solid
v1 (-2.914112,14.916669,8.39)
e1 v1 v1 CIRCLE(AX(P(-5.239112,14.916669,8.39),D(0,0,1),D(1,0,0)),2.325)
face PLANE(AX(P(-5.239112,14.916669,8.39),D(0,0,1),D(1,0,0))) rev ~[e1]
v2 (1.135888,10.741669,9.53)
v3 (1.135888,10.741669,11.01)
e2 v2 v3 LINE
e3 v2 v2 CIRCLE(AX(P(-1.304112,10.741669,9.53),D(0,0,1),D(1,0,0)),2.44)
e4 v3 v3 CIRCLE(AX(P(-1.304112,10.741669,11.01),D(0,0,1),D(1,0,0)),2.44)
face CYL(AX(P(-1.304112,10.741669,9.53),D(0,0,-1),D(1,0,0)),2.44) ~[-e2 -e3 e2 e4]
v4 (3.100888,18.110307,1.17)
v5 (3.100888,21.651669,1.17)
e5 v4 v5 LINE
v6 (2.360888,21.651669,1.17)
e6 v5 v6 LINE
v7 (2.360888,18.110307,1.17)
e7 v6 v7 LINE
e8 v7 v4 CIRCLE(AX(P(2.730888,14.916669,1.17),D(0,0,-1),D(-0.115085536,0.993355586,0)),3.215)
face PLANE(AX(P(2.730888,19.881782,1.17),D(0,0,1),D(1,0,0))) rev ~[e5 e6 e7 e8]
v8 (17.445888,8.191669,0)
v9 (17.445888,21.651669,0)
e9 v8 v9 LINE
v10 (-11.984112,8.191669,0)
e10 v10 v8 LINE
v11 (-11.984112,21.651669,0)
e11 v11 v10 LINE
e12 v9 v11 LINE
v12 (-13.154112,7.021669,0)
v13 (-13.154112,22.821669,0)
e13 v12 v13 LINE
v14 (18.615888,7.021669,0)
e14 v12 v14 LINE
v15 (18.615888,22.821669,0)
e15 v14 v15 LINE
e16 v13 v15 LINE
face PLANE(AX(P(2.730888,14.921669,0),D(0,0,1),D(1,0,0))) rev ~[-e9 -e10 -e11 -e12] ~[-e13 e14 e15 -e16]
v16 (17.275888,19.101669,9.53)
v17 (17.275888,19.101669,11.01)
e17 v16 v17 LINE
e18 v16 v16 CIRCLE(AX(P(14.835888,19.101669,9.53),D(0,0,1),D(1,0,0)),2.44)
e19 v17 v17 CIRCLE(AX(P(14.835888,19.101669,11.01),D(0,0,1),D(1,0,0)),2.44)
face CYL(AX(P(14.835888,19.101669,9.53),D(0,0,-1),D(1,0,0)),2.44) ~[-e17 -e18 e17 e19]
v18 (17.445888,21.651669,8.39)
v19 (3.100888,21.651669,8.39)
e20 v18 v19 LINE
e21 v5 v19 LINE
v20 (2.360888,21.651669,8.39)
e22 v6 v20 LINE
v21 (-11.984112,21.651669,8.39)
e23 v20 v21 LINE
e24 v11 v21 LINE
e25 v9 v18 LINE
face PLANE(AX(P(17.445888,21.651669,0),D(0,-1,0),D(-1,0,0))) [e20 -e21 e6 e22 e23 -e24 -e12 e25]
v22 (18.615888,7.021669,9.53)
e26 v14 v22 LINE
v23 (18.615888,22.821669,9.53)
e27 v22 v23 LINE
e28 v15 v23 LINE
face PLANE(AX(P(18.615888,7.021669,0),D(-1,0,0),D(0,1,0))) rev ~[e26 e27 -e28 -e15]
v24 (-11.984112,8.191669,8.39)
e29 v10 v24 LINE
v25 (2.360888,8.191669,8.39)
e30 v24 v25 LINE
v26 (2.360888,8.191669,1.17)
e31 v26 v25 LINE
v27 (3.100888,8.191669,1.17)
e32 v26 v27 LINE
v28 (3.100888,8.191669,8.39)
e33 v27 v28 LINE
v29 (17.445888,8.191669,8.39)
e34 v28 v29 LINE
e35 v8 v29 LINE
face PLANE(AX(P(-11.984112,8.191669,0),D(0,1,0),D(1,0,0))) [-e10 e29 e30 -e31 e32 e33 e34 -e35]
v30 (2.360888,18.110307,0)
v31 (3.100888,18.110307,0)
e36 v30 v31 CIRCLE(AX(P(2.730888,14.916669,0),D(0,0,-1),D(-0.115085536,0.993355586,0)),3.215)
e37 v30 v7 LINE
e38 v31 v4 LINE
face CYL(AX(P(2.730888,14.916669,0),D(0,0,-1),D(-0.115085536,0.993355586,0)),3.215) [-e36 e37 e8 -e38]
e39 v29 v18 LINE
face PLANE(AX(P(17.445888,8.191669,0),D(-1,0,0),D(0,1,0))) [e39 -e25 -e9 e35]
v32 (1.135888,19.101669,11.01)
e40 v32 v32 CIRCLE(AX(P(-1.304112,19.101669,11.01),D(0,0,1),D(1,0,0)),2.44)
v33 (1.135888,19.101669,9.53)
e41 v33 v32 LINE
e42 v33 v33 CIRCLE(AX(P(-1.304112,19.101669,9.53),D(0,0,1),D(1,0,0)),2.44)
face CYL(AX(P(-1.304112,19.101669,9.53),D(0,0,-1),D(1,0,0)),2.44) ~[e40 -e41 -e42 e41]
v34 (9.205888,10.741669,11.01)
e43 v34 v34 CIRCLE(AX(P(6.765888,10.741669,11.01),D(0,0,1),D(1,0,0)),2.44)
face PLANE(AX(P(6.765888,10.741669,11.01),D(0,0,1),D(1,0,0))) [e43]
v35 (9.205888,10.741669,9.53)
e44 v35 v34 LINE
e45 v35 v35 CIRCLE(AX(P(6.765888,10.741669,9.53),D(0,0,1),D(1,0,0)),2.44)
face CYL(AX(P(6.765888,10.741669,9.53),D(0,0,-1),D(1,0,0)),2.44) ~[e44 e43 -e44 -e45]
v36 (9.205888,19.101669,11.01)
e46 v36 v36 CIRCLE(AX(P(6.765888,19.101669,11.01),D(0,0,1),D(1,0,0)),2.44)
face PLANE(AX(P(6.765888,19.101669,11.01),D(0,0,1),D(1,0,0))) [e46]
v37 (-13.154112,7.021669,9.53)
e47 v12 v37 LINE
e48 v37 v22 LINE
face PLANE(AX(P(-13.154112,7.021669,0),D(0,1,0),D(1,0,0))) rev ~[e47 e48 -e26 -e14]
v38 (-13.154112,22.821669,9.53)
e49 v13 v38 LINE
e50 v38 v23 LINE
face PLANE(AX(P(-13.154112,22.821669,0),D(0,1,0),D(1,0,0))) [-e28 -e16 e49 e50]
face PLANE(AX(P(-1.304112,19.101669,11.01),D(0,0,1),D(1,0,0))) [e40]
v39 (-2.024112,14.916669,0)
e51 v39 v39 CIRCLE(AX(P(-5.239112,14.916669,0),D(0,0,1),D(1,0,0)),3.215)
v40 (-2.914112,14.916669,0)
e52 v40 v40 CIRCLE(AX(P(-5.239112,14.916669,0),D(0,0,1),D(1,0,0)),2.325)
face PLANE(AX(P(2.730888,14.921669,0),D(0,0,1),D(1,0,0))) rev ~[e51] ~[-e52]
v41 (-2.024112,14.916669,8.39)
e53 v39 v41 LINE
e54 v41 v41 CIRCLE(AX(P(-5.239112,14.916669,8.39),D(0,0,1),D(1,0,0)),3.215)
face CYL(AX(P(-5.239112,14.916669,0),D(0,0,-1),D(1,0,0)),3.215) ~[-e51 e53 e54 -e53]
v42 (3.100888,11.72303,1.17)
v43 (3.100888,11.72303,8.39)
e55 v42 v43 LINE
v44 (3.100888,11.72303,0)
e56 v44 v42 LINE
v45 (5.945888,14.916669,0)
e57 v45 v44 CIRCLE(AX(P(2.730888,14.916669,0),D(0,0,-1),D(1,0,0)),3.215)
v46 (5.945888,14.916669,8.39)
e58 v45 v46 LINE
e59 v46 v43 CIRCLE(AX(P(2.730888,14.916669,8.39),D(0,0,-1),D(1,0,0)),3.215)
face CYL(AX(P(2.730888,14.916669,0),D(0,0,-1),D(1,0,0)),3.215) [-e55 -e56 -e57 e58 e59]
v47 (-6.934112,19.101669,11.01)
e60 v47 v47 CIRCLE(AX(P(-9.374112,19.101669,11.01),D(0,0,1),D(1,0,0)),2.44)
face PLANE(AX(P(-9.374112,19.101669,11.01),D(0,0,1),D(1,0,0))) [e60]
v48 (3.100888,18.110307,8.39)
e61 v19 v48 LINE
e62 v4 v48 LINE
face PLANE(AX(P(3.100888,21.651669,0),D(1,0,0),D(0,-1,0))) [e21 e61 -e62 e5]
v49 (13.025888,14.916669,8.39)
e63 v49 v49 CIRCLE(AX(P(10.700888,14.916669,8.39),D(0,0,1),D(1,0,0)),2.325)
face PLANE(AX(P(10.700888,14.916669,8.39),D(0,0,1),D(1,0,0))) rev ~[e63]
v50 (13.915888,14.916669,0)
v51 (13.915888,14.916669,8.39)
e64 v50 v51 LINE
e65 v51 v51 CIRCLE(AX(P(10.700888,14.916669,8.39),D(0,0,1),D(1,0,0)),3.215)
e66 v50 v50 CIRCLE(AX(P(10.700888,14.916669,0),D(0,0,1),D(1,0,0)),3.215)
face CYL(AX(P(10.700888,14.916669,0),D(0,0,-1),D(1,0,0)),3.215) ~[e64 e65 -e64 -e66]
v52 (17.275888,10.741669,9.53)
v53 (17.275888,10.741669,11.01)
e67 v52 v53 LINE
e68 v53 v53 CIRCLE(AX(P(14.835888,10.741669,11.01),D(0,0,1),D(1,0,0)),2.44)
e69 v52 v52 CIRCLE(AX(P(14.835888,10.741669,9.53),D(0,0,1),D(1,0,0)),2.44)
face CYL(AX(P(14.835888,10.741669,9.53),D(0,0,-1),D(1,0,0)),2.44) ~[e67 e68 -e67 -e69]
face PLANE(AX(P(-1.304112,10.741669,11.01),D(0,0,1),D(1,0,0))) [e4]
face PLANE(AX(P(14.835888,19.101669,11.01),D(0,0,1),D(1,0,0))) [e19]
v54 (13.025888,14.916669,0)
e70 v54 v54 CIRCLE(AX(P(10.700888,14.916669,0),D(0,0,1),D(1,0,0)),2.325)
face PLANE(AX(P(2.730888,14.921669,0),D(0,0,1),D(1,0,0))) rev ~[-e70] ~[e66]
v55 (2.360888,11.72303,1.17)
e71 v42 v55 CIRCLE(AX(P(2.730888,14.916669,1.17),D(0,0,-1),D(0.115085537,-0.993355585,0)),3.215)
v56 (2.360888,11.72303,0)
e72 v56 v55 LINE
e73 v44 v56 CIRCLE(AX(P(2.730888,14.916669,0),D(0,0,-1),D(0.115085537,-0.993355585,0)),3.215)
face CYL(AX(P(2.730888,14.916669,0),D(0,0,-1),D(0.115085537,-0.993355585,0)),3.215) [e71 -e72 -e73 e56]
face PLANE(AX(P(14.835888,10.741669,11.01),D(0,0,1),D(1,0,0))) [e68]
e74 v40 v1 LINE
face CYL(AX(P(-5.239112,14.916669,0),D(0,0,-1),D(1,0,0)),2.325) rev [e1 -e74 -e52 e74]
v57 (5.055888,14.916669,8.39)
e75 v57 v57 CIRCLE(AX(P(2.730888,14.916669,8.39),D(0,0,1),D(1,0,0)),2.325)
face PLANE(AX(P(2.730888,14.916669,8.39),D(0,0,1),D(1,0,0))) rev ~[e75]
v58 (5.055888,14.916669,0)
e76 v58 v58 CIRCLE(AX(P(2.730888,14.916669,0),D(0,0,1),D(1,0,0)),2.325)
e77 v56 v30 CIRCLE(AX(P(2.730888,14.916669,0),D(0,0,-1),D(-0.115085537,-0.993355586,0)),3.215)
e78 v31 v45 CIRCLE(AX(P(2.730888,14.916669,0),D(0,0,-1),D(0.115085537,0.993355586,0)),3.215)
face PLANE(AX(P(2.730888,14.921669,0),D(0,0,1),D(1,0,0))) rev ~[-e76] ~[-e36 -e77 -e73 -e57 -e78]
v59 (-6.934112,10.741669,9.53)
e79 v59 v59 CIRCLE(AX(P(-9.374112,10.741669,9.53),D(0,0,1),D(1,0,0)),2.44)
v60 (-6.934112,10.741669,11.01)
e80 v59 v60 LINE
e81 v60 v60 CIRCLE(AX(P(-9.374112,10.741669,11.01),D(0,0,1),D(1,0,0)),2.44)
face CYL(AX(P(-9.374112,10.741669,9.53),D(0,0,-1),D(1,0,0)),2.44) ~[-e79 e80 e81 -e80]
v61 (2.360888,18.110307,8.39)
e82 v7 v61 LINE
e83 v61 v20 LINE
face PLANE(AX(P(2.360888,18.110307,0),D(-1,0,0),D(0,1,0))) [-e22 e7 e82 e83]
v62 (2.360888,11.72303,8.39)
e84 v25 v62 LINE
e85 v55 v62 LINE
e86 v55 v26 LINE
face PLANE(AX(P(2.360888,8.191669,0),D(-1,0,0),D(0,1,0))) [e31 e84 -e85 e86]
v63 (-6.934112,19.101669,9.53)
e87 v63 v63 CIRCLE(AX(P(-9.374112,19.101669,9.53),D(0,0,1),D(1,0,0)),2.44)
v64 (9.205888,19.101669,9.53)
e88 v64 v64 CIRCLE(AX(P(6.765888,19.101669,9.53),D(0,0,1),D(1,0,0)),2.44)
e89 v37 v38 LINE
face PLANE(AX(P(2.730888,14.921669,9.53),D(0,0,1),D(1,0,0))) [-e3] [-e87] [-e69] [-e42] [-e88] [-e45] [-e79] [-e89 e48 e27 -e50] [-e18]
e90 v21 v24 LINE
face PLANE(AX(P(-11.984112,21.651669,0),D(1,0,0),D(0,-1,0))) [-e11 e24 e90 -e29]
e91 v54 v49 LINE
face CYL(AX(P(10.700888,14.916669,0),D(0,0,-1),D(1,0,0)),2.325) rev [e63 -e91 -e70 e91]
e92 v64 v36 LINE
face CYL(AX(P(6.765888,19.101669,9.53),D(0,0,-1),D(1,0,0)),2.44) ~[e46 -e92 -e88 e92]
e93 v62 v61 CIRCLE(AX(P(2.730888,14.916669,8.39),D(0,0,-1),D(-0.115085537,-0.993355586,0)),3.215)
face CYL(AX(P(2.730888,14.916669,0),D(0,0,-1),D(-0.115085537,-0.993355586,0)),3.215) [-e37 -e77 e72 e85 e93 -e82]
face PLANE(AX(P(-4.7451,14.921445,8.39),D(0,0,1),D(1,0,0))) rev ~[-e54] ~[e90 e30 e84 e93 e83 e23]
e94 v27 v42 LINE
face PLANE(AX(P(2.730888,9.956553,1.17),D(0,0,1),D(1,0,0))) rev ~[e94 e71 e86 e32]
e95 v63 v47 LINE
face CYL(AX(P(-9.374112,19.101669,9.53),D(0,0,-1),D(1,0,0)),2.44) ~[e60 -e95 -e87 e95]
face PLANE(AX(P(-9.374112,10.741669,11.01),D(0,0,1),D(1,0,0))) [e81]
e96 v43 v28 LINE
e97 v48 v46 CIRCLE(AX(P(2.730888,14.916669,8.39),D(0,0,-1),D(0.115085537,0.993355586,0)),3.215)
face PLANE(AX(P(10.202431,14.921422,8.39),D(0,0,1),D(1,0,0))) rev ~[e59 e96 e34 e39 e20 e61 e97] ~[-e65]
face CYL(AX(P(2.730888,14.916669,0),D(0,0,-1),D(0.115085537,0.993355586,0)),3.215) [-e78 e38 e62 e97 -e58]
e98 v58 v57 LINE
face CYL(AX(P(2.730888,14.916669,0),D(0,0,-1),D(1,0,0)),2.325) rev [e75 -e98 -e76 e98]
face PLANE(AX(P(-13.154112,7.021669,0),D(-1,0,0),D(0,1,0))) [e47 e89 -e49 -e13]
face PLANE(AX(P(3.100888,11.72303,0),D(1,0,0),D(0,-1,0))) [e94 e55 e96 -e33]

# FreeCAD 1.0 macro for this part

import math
import FreeCAD as App
import Part
import Sketcher

V = App.Vector

doc = App.newDocument("Part")
body = doc.addObject("PartDesign::Body", "Body")

# Sketch on XY plane
sketch1 = body.newObject("Sketcher::SketchObject", "Sketch")
sketch1.AttachmentSupport = (doc.getObject("XY_Plane"), [""])
sketch1.MapMode = "FlatFace"
sketch1.addGeometry([
    Part.LineSegment(V(-13.154112, 22.821669, 0), V(-13.154112, 7.021669, 0)),
    Part.LineSegment(V(-13.154112, 7.021669, 0), V(18.615888, 7.021669, 0)),
    Part.LineSegment(V(18.615888, 7.021669, 0), V(18.615888, 22.821669, 0)),
    Part.LineSegment(V(18.615888, 22.821669, 0), V(-13.154112, 22.821669, 0)),
], False)
sketch1.addConstraint([
    Sketcher.Constraint("Coincident", 0, 2, 1, 1),
    Sketcher.Constraint("Coincident", 1, 2, 2, 1),
    Sketcher.Constraint("Coincident", 2, 2, 3, 1),
    Sketcher.Constraint("Coincident", 3, 2, 0, 1),
    Sketcher.Constraint("Vertical", 0),
    Sketcher.Constraint("Horizontal", 1),
    Sketcher.Constraint("Vertical", 2),
    Sketcher.Constraint("Horizontal", 3),
    Sketcher.Constraint("DistanceY", 0, 2, 0, 1, 15.8),
    Sketcher.Constraint("DistanceX", 1, 1, 1, 2, 31.77),
    Sketcher.Constraint("DistanceY", -1, 1, 0, 2, 7.021669),
    Sketcher.Constraint("DistanceX", 0, 2, -1, 1, 13.154112),
])
pad1 = body.newObject("PartDesign::Pad", "Pad")
pad1.Profile = sketch1
pad1.Length = 9.53

# Sketch on XY plane
sketch2 = body.newObject("Sketcher::SketchObject", "Sketch001")
sketch2.AttachmentSupport = (doc.getObject("XY_Plane"), [""])
sketch2.MapMode = "FlatFace"
sketch2.addGeometry([
    Part.LineSegment(V(-11.984112, 21.651669, 0), V(-11.984112, 8.191669, 0)),  # 0
    Part.LineSegment(V(-11.984112, 8.191669, 0), V(2.360888, 8.191669, 0)),  # 1
    Part.LineSegment(V(2.360888, 8.191669, 0), V(2.360888, 11.72303, 0)),  # 2
    Part.ArcOfCircle(Part.Circle(V(2.730888, 14.916669, 0), V(0, 0, 1), 3.215), math.radians(96.608559), math.radians(263.391441)),  # 3
    Part.LineSegment(V(2.360888, 18.110307, 0), V(2.360888, 21.651669, 0)),  # 4
    Part.LineSegment(V(2.360888, 21.651669, 0), V(-11.984112, 21.651669, 0)),  # 5
    Part.Circle(V(-5.239112, 14.916669, 0), V(0, 0, 1), 3.215),  # 6
    Part.LineSegment(V(3.100888, 11.72303, 0), V(3.100888, 8.191669, 0)),  # 7
    Part.LineSegment(V(3.100888, 8.191669, 0), V(17.445888, 8.191669, 0)),  # 8
    Part.LineSegment(V(17.445888, 8.191669, 0), V(17.445888, 21.651669, 0)),  # 9
    Part.LineSegment(V(17.445888, 21.651669, 0), V(3.100888, 21.651669, 0)),  # 10
    Part.LineSegment(V(3.100888, 21.651669, 0), V(3.100888, 18.110307, 0)),  # 11
    Part.ArcOfCircle(Part.Circle(V(2.730888, 14.916669, 0), V(0, 0, 1), 3.215), math.radians(0), math.radians(83.391441)),  # 12
    Part.ArcOfCircle(Part.Circle(V(2.730888, 14.916669, 0), V(0, 0, 1), 3.215), math.radians(-83.391441), math.radians(0)),  # 13
    Part.Circle(V(10.700888, 14.916669, 0), V(0, 0, 1), 3.215),  # 14
    Part.Circle(V(10.700888, 14.916669, 0), V(0, 0, 1), 2.325),  # 15
    Part.Circle(V(2.730888, 14.916669, 0), V(0, 0, 1), 2.325),  # 16
    Part.Circle(V(-5.239112, 14.916669, 0), V(0, 0, 1), 2.325),  # 17
], False)
sketch2.addConstraint([
    Sketcher.Constraint("Coincident", 0, 2, 1, 1),
    Sketcher.Constraint("Coincident", 1, 2, 2, 1),
    Sketcher.Constraint("Coincident", 2, 2, 3, 2),
    Sketcher.Constraint("Coincident", 3, 1, 4, 1),
    Sketcher.Constraint("Coincident", 4, 2, 5, 1),
    Sketcher.Constraint("Coincident", 5, 2, 0, 1),
    Sketcher.Constraint("Coincident", 7, 2, 8, 1),
    Sketcher.Constraint("Coincident", 8, 2, 9, 1),
    Sketcher.Constraint("Coincident", 9, 2, 10, 1),
    Sketcher.Constraint("Coincident", 10, 2, 11, 1),
    Sketcher.Constraint("Coincident", 11, 2, 12, 2),
    Sketcher.Constraint("Tangent", 12, 1, 13, 2),
    Sketcher.Constraint("Coincident", 13, 1, 7, 1),
    Sketcher.Constraint("Vertical", 0),
    Sketcher.Constraint("Horizontal", 1),
    Sketcher.Constraint("Vertical", 2),
    Sketcher.Constraint("Vertical", 4),
    Sketcher.Constraint("Horizontal", 5),
    Sketcher.Constraint("Vertical", 7),
    Sketcher.Constraint("Horizontal", 8),
    Sketcher.Constraint("Vertical", 9),
    Sketcher.Constraint("Horizontal", 10),
    Sketcher.Constraint("Vertical", 11),
    Sketcher.Constraint("Coincident", 12, 3, 3, 3),
    Sketcher.Constraint("Coincident", 15, 3, 14, 3),
    Sketcher.Constraint("Coincident", 16, 3, 3, 3),
    Sketcher.Constraint("Coincident", 17, 3, 6, 3),
    Sketcher.Constraint("Equal", 3, 6),
    Sketcher.Constraint("Equal", 6, 12),
    Sketcher.Constraint("Equal", 12, 13),
    Sketcher.Constraint("Equal", 13, 14),
    Sketcher.Constraint("Equal", 15, 16),
    Sketcher.Constraint("Equal", 16, 17),
    Sketcher.Constraint("Horizontal", 3, 3, 6, 3),
    Sketcher.Constraint("Horizontal", 13, 3, 14, 3),
    Sketcher.Constraint("Horizontal", 1, 2, 7, 2),
    Sketcher.Constraint("Horizontal", 5, 2, 9, 2),
    Sketcher.Constraint("Horizontal", 3, 1, 11, 2),
    Sketcher.Constraint("Horizontal", 17, 3, 12, 1),
    Sketcher.Constraint("Horizontal", 2, 2, 13, 1),
    Sketcher.Constraint("Vertical", 2, 2, 3, 1),
    Sketcher.Constraint("Equal", 5, 8),
    Sketcher.Constraint("Diameter", 6, 6.43),
    Sketcher.Constraint("Diameter", 15, 4.65),
    Sketcher.Constraint("DistanceY", 0, 2, 0, 1, 13.46),
    Sketcher.Constraint("DistanceX", 6, 3, 1, 2, 7.6),
    Sketcher.Constraint("DistanceX", 1, 1, 1, 2, 14.345),
    Sketcher.Constraint("DistanceX", 6, 3, 3, 3, 7.97),
    Sketcher.Constraint("DistanceX", 3, 3, 14, 3, 7.97),
    Sketcher.Constraint("DistanceY", 0, 2, 6, 3, 6.725),
    Sketcher.Constraint("DistanceY", -1, 1, 3, 3, 14.916669),
    Sketcher.Constraint("DistanceX", -1, 1, 3, 3, 2.730888),
])
pocket1 = body.newObject("PartDesign::Pocket", "Pocket")
pocket1.Profile = sketch2
pocket1.Length = 8.39
pocket1.Reversed = True

# Sketch on XY plane
sketch3 = body.newObject("Sketcher::SketchObject", "Sketch002")
sketch3.AttachmentSupport = (doc.getObject("XY_Plane"), [""])
sketch3.MapMode = "FlatFace"
sketch3.addGeometry([
    Part.LineSegment(V(2.360888, 11.72303, 0), V(2.360888, 8.191669, 0)),  # 0
    Part.LineSegment(V(2.360888, 8.191669, 0), V(3.100888, 8.191669, 0)),  # 1
    Part.LineSegment(V(3.100888, 8.191669, 0), V(3.100888, 11.72303, 0)),  # 2
    Part.ArcOfCircle(Part.Circle(V(2.730888, 14.916669, 0), V(0, 0, 1), 3.215), math.radians(-96.608559), math.radians(-83.391441)),  # 3
    Part.LineSegment(V(3.100888, 21.651669, 0), V(2.360888, 21.651669, 0)),  # 4
    Part.LineSegment(V(2.360888, 21.651669, 0), V(2.360888, 18.110307, 0)),  # 5
    Part.ArcOfCircle(Part.Circle(V(2.730888, 14.916669, 0), V(0, 0, 1), 3.215), math.radians(83.391441), math.radians(96.608559)),  # 6
    Part.LineSegment(V(3.100888, 18.110307, 0), V(3.100888, 21.651669, 0)),  # 7
], False)
sketch3.addConstraint([
    Sketcher.Constraint("Coincident", 0, 2, 1, 1),
    Sketcher.Constraint("Coincident", 1, 2, 2, 1),
    Sketcher.Constraint("Coincident", 2, 2, 3, 2),
    Sketcher.Constraint("Coincident", 3, 1, 0, 1),
    Sketcher.Constraint("Coincident", 4, 2, 5, 1),
    Sketcher.Constraint("Coincident", 5, 2, 6, 2),
    Sketcher.Constraint("Coincident", 6, 1, 7, 1),
    Sketcher.Constraint("Coincident", 7, 2, 4, 1),
    Sketcher.Constraint("Vertical", 0),
    Sketcher.Constraint("Horizontal", 1),
    Sketcher.Constraint("Vertical", 2),
    Sketcher.Constraint("Horizontal", 4),
    Sketcher.Constraint("Vertical", 5),
    Sketcher.Constraint("Vertical", 7),
    Sketcher.Constraint("Coincident", 6, 3, 3, 3),
    Sketcher.Constraint("Equal", 3, 6),
    Sketcher.Constraint("Horizontal", 2, 2, 3, 1),
    Sketcher.Constraint("Horizontal", 5, 2, 6, 1),
    Sketcher.Constraint("Vertical", 3, 1, 4, 2),
    Sketcher.Constraint("Radius", 3, 3.215),
    Sketcher.Constraint("DistanceX", 1, 1, 1, 2, 0.74),
    Sketcher.Constraint("DistanceY", 0, 2, 4, 2, 13.46),
    Sketcher.Constraint("DistanceY", 0, 2, 6, 3, 6.725),
    Sketcher.Constraint("DistanceY", -1, 1, 3, 3, 14.916669),
    Sketcher.Constraint("DistanceX", -1, 1, 3, 3, 2.730888),
])
pocket2 = body.newObject("PartDesign::Pocket", "Pocket001")
pocket2.Profile = sketch3
pocket2.Length = 1.17
pocket2.Reversed = True

# Sketch on XY plane
sketch4 = body.newObject("Sketcher::SketchObject", "Sketch003")
sketch4.AttachmentSupport = (doc.getObject("XY_Plane"), [""])
sketch4.MapMode = "FlatFace"
sketch4.AttachmentOffset = App.Placement(V(0, 0, 9.53), App.Rotation())
sketch4.addGeometry([
    Part.Circle(V(-9.374112, 19.101669, 0), V(0, 0, 1), 2.44),  # 0
    Part.Circle(V(-9.374112, 10.741669, 0), V(0, 0, 1), 2.44),  # 1
    Part.Circle(V(-1.304112, 19.101669, 0), V(0, 0, 1), 2.44),  # 2
    Part.Circle(V(-1.304112, 10.741669, 0), V(0, 0, 1), 2.44),  # 3
    Part.Circle(V(6.765888, 19.101669, 0), V(0, 0, 1), 2.44),  # 4
    Part.Circle(V(6.765888, 10.741669, 0), V(0, 0, 1), 2.44),  # 5
    Part.Circle(V(14.835888, 19.101669, 0), V(0, 0, 1), 2.44),  # 6
    Part.Circle(V(14.835888, 10.741669, 0), V(0, 0, 1), 2.44),  # 7
], False)
sketch4.addConstraint([
    Sketcher.Constraint("Equal", 0, 1),
    Sketcher.Constraint("Equal", 1, 2),
    Sketcher.Constraint("Equal", 2, 3),
    Sketcher.Constraint("Equal", 3, 4),
    Sketcher.Constraint("Equal", 4, 5),
    Sketcher.Constraint("Equal", 5, 6),
    Sketcher.Constraint("Equal", 6, 7),
    Sketcher.Constraint("Horizontal", 0, 3, 2, 3),
    Sketcher.Constraint("Horizontal", 1, 3, 3, 3),
    Sketcher.Constraint("Horizontal", 2, 3, 4, 3),
    Sketcher.Constraint("Horizontal", 3, 3, 5, 3),
    Sketcher.Constraint("Horizontal", 4, 3, 6, 3),
    Sketcher.Constraint("Horizontal", 5, 3, 7, 3),
    Sketcher.Constraint("Vertical", 0, 3, 1, 3),
    Sketcher.Constraint("Vertical", 2, 3, 3, 3),
    Sketcher.Constraint("Vertical", 4, 3, 5, 3),
    Sketcher.Constraint("Vertical", 6, 3, 7, 3),
    Sketcher.Constraint("Diameter", 0, 4.88),
    Sketcher.Constraint("DistanceY", 1, 3, 0, 3, 8.36),
    Sketcher.Constraint("DistanceX", 0, 3, 2, 3, 8.07),
    Sketcher.Constraint("DistanceX", 2, 3, 4, 3, 8.07),
    Sketcher.Constraint("DistanceX", 4, 3, 6, 3, 8.07),
    Sketcher.Constraint("DistanceY", -1, 1, 0, 3, 19.101669),
    Sketcher.Constraint("DistanceX", 0, 3, -1, 1, 9.374112),
])
pad2 = body.newObject("PartDesign::Pad", "Pad001")
pad2.Profile = sketch4
pad2.Length = 1.48

doc.recompute()
